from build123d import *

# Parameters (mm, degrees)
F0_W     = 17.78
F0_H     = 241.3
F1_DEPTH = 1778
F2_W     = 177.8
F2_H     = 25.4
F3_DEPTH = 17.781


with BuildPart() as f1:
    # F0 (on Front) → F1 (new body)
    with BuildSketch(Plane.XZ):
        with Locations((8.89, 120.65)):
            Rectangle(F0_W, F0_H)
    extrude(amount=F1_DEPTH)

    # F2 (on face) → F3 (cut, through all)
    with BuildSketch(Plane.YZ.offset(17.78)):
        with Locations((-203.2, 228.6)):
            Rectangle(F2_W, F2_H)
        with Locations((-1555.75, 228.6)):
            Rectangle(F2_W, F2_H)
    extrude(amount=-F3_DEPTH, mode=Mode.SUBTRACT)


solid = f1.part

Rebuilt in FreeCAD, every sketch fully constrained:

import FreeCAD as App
import Part
import Sketcher

V = App.Vector
Q = App.Units.Quantity


def add_polygon(sketch, points):
    """Adds a closed chain of lines whose ends are joined by coincident constraints."""
    first, n = sketch.GeometryCount, len(points)
    for a, b in zip(points, points[1:] + points[:1]):
        sketch.addGeometry(Part.LineSegment(App.Vector(*a, 0), App.Vector(*b, 0)), False)
    for i in range(n):
        sketch.addConstraint(Sketcher.Constraint("Coincident", first + i, 2, first + (i + 1) % n, 1))

doc = App.newDocument("Part")
body = doc.addObject("PartDesign::Body", "Body")

# Sketch on XZ plane
sketch1 = body.newObject("Sketcher::SketchObject", "Sketch")
sketch1.AttachmentSupport = (doc.getObject("XZ_Plane"), [""])
sketch1.MapMode = "FlatFace"
add_polygon(sketch1, [(0, 241.3), (0, 0), (17.78, 0), (17.78, 241.3)])  # lines 0-3
sketch1.addConstraint([
    Sketcher.Constraint("Vertical", 0),
    Sketcher.Constraint("Horizontal", 1),
    Sketcher.Constraint("Vertical", 2),
    Sketcher.Constraint("Horizontal", 3),
    Sketcher.Constraint("Coincident", 0, 2, -1, 1),
    Sketcher.Constraint("DistanceX", 1, 1, 1, 2, Q("0.7 in")),
    Sketcher.Constraint("DistanceY", 0, 2, 0, 1, Q("9.5 in")),
])
pad1 = body.newObject("PartDesign::Pad", "Pad")
pad1.Profile = sketch1
pad1.Length = Q("70 in")

# Sketch on YZ plane
sketch2 = body.newObject("Sketcher::SketchObject", "Sketch001")
sketch2.AttachmentSupport = (doc.getObject("YZ_Plane"), [""])
sketch2.MapMode = "FlatFace"
sketch2.AttachmentOffset = App.Placement(V(0, 0, 0.7 * 25.4), App.Rotation())
add_polygon(sketch2, [(-292.1, 241.3), (-292.1, 215.9), (-114.3, 215.9), (-114.3, 241.3)])  # lines 0-3
add_polygon(sketch2, [(-1644.65, 241.3), (-1644.65, 215.9), (-1466.85, 215.9), (-1466.85, 241.3)])  # lines 4-7
sketch2.addConstraint([
    Sketcher.Constraint("Vertical", 0),
    Sketcher.Constraint("Horizontal", 1),
    Sketcher.Constraint("Vertical", 2),
    Sketcher.Constraint("Horizontal", 3),
    Sketcher.Constraint("Vertical", 4),
    Sketcher.Constraint("Horizontal", 5),
    Sketcher.Constraint("Vertical", 6),
    Sketcher.Constraint("Horizontal", 7),
    Sketcher.Constraint("Horizontal", 1, 2, 4, 2),
    Sketcher.Constraint("Horizontal", 3, 2, 6, 2),
    Sketcher.Constraint("Equal", 3, 5),
    Sketcher.Constraint("DistanceX", 1, 1, 1, 2, Q("7 in")),
    Sketcher.Constraint("DistanceY", 0, 2, 0, 1, Q("1 in")),
    Sketcher.Constraint("DistanceX", 0, 2, -1, 1, Q("11.5 in")),
    Sketcher.Constraint("DistanceY", -1, 1, 0, 2, Q("8.5 in")),
    Sketcher.Constraint("DistanceX", 4, 2, -1, 1, Q("64.75 in")),
])
pocket1 = body.newObject("PartDesign::Pocket", "Pocket")
pocket1.Profile = sketch2
pocket1.Type = "ThroughAll"

doc.recompute()
